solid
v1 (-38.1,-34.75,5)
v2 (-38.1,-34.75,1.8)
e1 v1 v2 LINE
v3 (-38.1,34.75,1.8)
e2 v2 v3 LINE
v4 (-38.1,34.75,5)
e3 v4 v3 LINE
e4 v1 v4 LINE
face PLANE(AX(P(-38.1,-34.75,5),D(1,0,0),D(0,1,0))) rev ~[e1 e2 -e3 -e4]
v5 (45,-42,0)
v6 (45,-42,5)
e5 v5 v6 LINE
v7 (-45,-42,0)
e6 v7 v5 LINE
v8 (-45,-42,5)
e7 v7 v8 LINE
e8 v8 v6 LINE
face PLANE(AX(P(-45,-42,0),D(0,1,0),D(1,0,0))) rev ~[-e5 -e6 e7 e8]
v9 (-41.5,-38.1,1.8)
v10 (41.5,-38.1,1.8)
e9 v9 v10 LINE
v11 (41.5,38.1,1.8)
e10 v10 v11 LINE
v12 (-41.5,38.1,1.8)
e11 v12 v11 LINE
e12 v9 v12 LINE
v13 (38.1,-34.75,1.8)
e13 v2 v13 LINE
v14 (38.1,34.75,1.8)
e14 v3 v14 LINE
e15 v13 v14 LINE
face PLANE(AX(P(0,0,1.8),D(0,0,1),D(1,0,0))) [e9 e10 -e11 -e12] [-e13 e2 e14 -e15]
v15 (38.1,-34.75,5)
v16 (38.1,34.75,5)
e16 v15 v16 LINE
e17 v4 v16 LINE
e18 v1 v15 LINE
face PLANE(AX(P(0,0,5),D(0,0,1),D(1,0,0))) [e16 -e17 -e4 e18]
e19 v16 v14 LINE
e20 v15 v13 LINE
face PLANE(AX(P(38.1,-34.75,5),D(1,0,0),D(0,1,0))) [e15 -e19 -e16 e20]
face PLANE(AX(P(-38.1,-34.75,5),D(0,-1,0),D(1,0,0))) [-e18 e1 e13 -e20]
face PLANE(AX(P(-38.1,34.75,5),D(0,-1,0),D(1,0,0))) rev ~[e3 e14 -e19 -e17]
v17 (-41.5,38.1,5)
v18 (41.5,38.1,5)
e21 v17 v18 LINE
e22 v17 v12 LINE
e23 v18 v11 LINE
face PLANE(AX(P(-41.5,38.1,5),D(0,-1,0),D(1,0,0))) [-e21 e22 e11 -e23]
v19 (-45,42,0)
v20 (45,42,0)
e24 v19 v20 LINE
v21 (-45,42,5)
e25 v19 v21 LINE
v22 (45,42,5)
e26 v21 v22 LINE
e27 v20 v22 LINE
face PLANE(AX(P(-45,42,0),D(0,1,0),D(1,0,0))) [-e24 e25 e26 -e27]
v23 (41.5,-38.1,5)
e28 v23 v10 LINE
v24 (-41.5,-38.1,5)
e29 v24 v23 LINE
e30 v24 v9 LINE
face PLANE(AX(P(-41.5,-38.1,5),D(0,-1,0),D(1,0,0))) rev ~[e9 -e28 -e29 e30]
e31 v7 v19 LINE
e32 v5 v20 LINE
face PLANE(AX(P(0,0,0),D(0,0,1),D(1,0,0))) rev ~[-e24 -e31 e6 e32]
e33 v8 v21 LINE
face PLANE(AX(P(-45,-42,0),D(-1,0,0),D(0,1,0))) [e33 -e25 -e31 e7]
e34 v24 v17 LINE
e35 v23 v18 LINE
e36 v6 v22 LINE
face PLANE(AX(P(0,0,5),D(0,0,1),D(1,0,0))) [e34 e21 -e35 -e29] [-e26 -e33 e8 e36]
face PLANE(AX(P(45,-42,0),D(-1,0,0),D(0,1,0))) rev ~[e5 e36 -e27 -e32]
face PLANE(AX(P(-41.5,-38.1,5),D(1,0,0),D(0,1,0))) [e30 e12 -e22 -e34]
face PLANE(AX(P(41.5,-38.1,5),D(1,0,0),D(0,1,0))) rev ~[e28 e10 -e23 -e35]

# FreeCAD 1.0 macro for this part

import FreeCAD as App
import Part
import Sketcher


def add_polygon(sketch, points):
    """Adds a closed chain of lines whose ends are joined by coincident constraints."""
    first, n = sketch.GeometryCount, len(points)
    for a, b in zip(points, points[1:] + points[:1]):
        sketch.addGeometry(Part.LineSegment(App.Vector(*a, 0), App.Vector(*b, 0)), False)
    for i in range(n):
        sketch.addConstraint(Sketcher.Constraint("Coincident", first + i, 2, first + (i + 1) % n, 1))

doc = App.newDocument("Part")
body = doc.addObject("PartDesign::Body", "Body")

sketch1 = body.newObject("Sketcher::SketchObject", "Sketch")
sketch1.AttachmentSupport = (doc.getObject("XY_Plane"), [""])
sketch1.MapMode = "FlatFace"
add_polygon(sketch1, [(-45, 42), (-45, -42), (45, -42), (45, 42)])
sketch1.addConstraint([
    Sketcher.Constraint("Vertical", 0),
    Sketcher.Constraint("Horizontal", 1),
    Sketcher.Constraint("Vertical", 2),
    Sketcher.Constraint("Horizontal", 3),
    Sketcher.Constraint("Symmetric", 0, 2, 2, 2, -1, 1),
    Sketcher.Constraint("DistanceX", 1, 1, 1, 2, 90.0),
    Sketcher.Constraint("DistanceY", 0, 2, 0, 1, 84.0),
])
pad1 = body.newObject("PartDesign::Pad", "Pad")
pad1.Profile = sketch1
pad1.Length = 5

sketch2 = body.newObject("Sketcher::SketchObject", "Sketch001")
sketch2.AttachmentSupport = (doc.getObject("XY_Plane"), [""])
sketch2.MapMode = "FlatFace"
sketch2.AttachmentOffset = App.Placement(App.Vector(0, 0, 5), App.Rotation())
add_polygon(sketch2, [(-42, 38), (-42, -38), (42, -38), (42, 38)])
add_polygon(sketch2, [(38, -35), (-38, -35), (-38, 35), (38, 35)])
sketch2.addConstraint([
    Sketcher.Constraint("Vertical", 0),
    Sketcher.Constraint("Horizontal", 1),
    Sketcher.Constraint("Vertical", 2),
    Sketcher.Constraint("Horizontal", 3),
    Sketcher.Constraint("Horizontal", 4),
    Sketcher.Constraint("Vertical", 5),
    Sketcher.Constraint("Horizontal", 6),
    Sketcher.Constraint("Vertical", 7),
    Sketcher.Constraint("Symmetric", 0, 2, 2, 2, -1, 1),
    Sketcher.Constraint("Symmetric", 4, 2, 6, 2, -1, 1),
    Sketcher.Constraint("Equal", 6, 0),
    Sketcher.Constraint("DistanceX", 1, 1, 1, 2, 83.0),
    Sketcher.Constraint("DistanceX", 4, 2, 4, 1, 76.2),
    Sketcher.Constraint("DistanceY", 5, 1, 5, 2, 69.5),
])
pocket1 = body.newObject("PartDesign::Pocket", "Pocket")
pocket1.Profile = sketch2
pocket1.Length = 3.2

doc.recompute()
